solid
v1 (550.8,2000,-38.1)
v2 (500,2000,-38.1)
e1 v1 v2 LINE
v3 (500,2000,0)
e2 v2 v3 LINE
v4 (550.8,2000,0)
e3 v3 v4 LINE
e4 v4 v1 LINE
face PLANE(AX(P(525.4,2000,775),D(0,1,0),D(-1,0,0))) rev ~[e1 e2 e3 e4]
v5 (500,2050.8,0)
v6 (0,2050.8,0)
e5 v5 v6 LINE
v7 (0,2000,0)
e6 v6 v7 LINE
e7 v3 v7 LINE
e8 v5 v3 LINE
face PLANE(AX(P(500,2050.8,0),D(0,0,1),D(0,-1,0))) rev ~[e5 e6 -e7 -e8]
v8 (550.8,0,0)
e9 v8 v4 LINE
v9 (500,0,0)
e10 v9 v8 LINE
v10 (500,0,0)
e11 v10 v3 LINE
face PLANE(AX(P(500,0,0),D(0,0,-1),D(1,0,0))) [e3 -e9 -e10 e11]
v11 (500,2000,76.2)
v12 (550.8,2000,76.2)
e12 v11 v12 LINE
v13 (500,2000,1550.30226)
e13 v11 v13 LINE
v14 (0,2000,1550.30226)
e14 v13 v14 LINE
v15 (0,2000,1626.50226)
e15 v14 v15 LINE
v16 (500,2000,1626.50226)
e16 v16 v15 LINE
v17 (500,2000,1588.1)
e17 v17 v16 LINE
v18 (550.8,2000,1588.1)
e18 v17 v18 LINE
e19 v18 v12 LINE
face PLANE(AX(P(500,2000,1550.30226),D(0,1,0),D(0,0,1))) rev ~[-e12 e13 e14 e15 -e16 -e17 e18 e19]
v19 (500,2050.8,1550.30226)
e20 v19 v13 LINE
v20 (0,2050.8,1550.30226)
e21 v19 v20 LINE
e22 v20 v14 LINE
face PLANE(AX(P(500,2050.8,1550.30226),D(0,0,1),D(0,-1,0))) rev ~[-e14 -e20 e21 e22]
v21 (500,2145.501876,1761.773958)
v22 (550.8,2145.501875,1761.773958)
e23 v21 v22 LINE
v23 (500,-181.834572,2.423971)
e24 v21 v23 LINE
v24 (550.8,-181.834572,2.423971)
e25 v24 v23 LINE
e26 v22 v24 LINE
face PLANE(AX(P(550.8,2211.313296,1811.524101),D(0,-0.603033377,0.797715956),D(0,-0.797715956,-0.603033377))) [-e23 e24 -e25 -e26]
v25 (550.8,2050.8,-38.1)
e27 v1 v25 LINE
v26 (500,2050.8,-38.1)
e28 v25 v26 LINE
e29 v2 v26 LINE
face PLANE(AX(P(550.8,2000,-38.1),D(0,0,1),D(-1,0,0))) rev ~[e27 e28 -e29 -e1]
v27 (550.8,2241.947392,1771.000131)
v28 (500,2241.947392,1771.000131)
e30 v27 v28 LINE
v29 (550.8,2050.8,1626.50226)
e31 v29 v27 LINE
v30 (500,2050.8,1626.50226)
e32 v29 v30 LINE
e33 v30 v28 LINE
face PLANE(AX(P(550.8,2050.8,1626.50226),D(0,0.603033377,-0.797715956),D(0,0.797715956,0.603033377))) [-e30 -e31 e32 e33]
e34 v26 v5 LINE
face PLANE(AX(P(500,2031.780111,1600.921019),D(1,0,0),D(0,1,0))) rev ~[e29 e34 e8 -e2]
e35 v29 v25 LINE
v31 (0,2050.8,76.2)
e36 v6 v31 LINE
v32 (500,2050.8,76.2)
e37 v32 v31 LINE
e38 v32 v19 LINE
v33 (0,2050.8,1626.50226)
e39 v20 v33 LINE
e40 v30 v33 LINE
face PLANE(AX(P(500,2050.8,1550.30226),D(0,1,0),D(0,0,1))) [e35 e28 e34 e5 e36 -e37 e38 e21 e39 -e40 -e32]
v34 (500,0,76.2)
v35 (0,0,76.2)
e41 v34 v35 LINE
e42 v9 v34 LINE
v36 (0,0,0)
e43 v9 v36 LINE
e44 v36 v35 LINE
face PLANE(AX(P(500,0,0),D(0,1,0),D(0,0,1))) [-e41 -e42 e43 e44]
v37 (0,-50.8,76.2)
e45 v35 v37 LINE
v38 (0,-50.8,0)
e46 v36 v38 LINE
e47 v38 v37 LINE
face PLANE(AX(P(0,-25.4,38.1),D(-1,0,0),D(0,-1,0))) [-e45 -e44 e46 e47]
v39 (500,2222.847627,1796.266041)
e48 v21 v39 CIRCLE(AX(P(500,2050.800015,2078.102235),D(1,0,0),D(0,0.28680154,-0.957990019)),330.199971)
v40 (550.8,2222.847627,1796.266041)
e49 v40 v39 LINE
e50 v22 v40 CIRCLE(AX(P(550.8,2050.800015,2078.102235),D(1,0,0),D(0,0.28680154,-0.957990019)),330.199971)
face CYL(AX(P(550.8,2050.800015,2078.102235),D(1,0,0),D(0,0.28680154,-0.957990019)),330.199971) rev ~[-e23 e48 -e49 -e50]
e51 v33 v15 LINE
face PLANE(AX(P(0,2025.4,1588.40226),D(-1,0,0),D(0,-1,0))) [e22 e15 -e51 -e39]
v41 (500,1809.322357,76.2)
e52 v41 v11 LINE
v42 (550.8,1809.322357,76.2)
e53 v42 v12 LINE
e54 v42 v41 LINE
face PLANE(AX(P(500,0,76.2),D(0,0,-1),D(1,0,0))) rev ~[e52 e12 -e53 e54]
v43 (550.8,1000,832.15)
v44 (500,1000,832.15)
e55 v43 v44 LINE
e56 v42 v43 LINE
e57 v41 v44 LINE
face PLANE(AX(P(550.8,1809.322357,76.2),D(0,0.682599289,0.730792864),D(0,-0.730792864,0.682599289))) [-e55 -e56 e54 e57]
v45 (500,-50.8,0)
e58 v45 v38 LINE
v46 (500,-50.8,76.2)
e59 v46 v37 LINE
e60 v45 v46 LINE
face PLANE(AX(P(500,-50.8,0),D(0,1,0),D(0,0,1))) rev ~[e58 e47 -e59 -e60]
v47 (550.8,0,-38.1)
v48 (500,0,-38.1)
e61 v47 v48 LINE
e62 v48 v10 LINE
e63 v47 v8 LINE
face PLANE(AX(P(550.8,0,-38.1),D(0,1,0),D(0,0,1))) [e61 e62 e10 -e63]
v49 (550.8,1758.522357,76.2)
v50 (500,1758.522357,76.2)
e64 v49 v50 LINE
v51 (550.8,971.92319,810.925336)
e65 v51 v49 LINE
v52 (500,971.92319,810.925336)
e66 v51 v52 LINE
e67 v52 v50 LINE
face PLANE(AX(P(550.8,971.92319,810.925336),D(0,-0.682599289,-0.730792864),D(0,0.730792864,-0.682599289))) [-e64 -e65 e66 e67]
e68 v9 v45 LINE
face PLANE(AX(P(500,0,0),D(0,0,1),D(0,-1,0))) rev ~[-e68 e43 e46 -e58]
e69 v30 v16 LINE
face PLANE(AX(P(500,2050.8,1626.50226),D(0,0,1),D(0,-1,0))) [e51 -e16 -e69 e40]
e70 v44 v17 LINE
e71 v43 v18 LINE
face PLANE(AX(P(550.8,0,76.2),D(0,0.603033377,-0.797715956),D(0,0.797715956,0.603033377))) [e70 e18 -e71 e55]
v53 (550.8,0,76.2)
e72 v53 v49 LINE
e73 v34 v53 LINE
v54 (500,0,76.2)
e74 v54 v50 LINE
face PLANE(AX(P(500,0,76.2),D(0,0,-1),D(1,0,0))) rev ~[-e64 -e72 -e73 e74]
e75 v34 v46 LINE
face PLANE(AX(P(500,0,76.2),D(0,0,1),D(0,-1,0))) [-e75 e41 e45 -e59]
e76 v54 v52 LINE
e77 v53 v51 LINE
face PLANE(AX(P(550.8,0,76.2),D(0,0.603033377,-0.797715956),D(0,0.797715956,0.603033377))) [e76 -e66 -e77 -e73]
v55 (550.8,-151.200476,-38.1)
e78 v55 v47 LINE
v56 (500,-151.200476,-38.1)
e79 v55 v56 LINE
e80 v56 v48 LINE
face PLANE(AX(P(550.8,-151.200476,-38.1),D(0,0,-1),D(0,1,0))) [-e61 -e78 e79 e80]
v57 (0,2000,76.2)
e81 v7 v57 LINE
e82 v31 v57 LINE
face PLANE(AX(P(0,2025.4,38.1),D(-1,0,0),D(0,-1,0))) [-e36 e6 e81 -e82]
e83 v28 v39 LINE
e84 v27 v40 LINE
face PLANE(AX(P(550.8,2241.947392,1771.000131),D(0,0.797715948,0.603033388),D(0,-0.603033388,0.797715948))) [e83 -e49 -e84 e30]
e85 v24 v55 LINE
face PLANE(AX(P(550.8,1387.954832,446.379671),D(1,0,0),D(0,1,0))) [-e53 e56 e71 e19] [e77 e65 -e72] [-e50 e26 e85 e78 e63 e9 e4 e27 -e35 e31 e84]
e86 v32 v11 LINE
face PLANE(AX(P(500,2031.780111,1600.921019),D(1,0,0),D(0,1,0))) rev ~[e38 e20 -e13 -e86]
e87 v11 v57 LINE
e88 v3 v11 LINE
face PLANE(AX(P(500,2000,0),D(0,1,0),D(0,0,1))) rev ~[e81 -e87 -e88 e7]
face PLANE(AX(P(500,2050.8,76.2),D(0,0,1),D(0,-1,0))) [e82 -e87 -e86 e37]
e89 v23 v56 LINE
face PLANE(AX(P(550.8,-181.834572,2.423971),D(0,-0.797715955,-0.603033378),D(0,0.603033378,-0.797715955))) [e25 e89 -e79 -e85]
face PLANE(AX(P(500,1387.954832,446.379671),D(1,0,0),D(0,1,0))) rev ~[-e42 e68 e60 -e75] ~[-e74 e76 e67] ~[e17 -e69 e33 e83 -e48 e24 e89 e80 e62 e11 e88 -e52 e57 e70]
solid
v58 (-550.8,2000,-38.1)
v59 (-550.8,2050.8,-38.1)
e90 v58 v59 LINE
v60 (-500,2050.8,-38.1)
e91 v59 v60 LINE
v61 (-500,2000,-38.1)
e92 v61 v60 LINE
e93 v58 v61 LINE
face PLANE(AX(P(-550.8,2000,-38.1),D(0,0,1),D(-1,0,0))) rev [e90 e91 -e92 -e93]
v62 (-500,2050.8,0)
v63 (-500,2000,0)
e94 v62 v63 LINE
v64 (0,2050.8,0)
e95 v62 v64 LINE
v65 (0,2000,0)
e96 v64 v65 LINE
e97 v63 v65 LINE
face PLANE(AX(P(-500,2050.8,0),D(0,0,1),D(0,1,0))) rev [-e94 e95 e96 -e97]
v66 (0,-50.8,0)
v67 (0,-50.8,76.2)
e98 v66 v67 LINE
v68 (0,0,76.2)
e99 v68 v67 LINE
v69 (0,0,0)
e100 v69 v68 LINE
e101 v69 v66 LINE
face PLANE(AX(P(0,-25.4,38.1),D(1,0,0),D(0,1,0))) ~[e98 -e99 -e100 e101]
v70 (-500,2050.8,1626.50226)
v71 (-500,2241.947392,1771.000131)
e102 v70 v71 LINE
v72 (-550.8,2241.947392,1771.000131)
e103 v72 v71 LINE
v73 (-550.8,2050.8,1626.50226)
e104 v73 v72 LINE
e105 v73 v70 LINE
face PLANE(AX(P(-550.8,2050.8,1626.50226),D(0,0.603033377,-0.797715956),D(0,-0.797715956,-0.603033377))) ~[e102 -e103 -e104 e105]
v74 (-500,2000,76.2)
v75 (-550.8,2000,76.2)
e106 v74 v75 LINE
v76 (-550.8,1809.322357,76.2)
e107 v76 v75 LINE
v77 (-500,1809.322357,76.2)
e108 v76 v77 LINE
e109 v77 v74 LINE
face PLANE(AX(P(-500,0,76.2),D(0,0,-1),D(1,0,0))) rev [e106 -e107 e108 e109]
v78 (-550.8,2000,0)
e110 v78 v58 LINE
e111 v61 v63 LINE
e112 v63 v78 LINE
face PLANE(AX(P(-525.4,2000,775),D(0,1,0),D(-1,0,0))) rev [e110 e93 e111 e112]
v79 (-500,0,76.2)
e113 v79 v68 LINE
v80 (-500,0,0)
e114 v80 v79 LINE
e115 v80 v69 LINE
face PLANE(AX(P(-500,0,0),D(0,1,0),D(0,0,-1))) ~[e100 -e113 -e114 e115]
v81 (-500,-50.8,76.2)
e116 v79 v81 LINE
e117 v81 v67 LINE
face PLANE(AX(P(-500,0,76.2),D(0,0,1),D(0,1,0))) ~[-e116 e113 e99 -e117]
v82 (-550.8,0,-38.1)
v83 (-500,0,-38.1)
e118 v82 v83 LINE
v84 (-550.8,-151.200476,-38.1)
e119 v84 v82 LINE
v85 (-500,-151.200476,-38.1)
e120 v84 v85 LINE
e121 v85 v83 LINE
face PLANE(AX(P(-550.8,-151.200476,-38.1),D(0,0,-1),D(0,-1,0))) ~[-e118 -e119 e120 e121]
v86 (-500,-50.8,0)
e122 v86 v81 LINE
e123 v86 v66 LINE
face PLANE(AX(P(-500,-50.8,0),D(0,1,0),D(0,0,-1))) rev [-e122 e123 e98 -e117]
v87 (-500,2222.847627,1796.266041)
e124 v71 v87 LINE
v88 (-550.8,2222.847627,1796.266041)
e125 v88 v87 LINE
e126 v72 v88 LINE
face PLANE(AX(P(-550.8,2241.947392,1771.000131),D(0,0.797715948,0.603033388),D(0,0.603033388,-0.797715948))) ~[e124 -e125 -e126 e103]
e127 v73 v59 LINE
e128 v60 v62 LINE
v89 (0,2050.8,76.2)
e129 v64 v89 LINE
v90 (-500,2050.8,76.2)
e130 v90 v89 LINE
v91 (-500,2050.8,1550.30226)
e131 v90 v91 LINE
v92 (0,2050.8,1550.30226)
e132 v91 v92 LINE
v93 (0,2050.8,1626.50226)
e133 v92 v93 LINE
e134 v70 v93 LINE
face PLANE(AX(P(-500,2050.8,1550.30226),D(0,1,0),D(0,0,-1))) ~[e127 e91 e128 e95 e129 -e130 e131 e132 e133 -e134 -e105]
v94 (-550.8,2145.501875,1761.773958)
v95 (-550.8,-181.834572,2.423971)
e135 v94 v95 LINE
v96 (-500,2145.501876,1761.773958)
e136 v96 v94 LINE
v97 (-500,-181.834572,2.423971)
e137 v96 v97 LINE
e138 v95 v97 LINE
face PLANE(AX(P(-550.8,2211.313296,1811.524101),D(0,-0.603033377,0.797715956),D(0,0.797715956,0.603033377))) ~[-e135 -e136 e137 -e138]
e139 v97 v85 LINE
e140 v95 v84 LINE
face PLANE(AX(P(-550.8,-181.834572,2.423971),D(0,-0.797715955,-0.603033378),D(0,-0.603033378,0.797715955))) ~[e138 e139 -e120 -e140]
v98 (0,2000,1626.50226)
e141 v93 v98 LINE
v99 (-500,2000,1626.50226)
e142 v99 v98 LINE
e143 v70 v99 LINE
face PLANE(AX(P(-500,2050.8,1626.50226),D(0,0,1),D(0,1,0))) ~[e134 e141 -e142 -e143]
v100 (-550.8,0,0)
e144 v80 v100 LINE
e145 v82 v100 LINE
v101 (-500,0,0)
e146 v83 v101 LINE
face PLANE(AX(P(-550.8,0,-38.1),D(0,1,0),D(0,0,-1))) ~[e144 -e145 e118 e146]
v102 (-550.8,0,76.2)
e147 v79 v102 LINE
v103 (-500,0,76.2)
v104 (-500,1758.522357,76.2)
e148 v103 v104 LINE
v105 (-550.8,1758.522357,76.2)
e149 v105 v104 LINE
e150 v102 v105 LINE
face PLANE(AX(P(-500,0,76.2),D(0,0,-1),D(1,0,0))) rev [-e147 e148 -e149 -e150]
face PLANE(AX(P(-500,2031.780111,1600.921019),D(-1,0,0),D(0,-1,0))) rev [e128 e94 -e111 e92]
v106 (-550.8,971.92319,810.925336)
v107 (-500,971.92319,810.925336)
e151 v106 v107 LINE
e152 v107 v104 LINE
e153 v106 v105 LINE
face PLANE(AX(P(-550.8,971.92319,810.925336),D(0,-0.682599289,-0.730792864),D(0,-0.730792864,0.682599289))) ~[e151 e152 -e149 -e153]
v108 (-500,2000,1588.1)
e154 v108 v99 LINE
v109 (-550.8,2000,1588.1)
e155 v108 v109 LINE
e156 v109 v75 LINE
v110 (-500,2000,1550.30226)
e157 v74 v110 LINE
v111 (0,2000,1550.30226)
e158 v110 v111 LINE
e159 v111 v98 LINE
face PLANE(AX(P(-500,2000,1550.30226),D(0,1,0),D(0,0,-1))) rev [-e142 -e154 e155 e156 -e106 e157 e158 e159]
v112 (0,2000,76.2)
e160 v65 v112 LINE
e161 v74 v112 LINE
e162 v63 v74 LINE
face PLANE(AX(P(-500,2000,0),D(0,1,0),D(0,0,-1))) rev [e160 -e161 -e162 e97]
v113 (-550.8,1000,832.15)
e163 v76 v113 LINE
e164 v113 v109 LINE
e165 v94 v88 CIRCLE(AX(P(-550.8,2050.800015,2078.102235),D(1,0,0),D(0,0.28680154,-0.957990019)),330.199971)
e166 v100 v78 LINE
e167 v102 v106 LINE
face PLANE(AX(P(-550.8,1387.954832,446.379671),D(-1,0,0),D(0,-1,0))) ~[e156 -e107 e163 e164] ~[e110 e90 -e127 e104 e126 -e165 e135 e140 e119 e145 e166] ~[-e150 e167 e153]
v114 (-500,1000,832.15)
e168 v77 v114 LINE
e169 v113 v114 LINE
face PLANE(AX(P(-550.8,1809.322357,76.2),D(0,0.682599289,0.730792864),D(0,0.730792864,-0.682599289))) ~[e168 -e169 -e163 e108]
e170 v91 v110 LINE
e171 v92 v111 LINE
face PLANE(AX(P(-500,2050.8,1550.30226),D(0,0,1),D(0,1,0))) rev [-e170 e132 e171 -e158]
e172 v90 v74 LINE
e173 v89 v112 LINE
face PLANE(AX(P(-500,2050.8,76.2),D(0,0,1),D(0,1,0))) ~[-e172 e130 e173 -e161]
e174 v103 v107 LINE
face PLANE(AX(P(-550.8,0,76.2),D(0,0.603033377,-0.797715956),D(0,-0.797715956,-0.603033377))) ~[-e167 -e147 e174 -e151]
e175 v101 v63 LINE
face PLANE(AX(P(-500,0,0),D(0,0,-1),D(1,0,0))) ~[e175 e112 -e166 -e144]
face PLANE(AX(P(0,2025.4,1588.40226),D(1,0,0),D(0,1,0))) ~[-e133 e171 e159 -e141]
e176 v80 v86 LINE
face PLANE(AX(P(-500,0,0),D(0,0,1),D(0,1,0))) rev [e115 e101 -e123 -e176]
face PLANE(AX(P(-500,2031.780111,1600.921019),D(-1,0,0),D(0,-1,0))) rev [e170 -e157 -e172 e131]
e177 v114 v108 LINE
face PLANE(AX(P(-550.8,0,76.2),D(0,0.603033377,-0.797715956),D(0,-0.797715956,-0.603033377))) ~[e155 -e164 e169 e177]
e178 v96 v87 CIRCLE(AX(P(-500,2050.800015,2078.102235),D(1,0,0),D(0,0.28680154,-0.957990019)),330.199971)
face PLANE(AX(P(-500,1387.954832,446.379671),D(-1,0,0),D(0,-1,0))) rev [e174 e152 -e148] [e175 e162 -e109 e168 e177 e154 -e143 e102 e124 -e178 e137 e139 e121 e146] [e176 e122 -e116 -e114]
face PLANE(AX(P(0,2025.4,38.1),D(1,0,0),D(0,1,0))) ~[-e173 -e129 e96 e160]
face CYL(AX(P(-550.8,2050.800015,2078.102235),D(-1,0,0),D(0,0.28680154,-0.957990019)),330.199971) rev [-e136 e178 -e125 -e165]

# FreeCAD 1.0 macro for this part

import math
import FreeCAD as App
import Part
import Sketcher
from FreeCAD import Vector
Q = App.Units.Quantity


def add_polygon(sketch, points):
    """Adds a closed chain of lines whose ends are joined by coincident constraints."""
    first, n = sketch.GeometryCount, len(points)
    for a, b in zip(points, points[1:] + points[:1]):
        sketch.addGeometry(Part.LineSegment(App.Vector(*a, 0), App.Vector(*b, 0)), False)
    for i in range(n):
        sketch.addConstraint(Sketcher.Constraint("Coincident", first + i, 2, first + (i + 1) % n, 1))

doc = App.newDocument("Part")
body = doc.addObject("PartDesign::Body", "Body")

# Sketch on XZ plane
sketch1 = body.newObject("Sketcher::SketchObject", "Sketch")
sketch1.AttachmentSupport = (doc.getObject("XZ_Plane"), [""])
sketch1.MapMode = "FlatFace"
add_polygon(sketch1, [(500, 76.2), (500, 0), (550.8, 0), (550.8, 76.2)])  # lines 0-3
sketch1.addConstraint([
    Sketcher.Constraint("Vertical", 0),
    Sketcher.Constraint("Horizontal", 1),
    Sketcher.Constraint("Vertical", 2),
    Sketcher.Constraint("Horizontal", 3),
    Sketcher.Constraint("PointOnObject", 0, 2, -1),
    Sketcher.Constraint("DistanceX", 1, 1, 1, 2, Q("50.8 mm")),
    Sketcher.Constraint("DistanceY", 0, 2, 0, 1, Q("76.2 mm")),
    Sketcher.Constraint("DistanceX", -1, 1, 0, 2, Q("500 mm")),
])
pad1 = body.newObject("PartDesign::Pad", "Pad")
pad1.Profile = sketch1
pad1.Length = 2000
pad1.Reversed = True

# Sketch on XZ plane
sketch2 = body.newObject("Sketcher::SketchObject", "Sketch001")
sketch2.AttachmentSupport = (doc.getObject("XZ_Plane"), [""])
sketch2.MapMode = "FlatFace"
sketch2.AttachmentOffset = App.Placement(Vector(0, 0, -2000), App.Rotation())
add_polygon(sketch2, [(550.8, 1588.1), (550.8, -38.1), (500, -38.1), (500, 1588.1)])  # lines 0-3
sketch2.addConstraint([
    Sketcher.Constraint("Vertical", 0),
    Sketcher.Constraint("Horizontal", 1),
    Sketcher.Constraint("Vertical", 2),
    Sketcher.Constraint("Horizontal", 3),
    Sketcher.Constraint("DistanceX", 1, 2, 1, 1, Q("50.8 mm")),
    Sketcher.Constraint("DistanceY", 0, 2, 0, 1, Q("1626.2 mm")),
    Sketcher.Constraint("DistanceX", -1, 1, 1, 2, Q("500 mm")),
    Sketcher.Constraint("DistanceY", 0, 2, -1, 1, Q("38.1 mm")),
])
pad2 = body.newObject("PartDesign::Pad", "Pad001")
pad2.Profile = sketch2
pad2.Length = 50.8
pad2.Reversed = True

# Sketch on YZ plane
sketch3 = body.newObject("Sketcher::SketchObject", "Sketch002")
sketch3.AttachmentSupport = (doc.getObject("YZ_Plane"), [""])
sketch3.MapMode = "FlatFace"
sketch3.AttachmentOffset = App.Placement(Vector(0, 0, 550.8), App.Rotation())
add_polygon(sketch3, [(2000, 1588.1), (2050.8, 1588.1), (2050.8, 1626.50226), (2241.947392, 1771.000131), (2211.313296, 1811.524101), (-181.834572, 2.423971), (-151.200476, -38.1), (0, -38.1), (0, 76.2)])  # lines 0-8
sketch3.addConstraint([
    Sketcher.Constraint("Horizontal", 0),
    Sketcher.Constraint("Vertical", 1),
    Sketcher.Constraint("Horizontal", 6),
    Sketcher.Constraint("Vertical", 7),
    Sketcher.Constraint("PointOnObject", 6, 2, -2),
    Sketcher.Constraint("Perpendicular", 2, 3),
    Sketcher.Constraint("Perpendicular", 3, 4),
    Sketcher.Constraint("Perpendicular", 4, 5),
    Sketcher.Constraint("Perpendicular", 5, 8),
    Sketcher.Constraint("Equal", 3, 5),
    Sketcher.Constraint("Distance", 4, Q("3000 mm")),
    Sketcher.Constraint("DistanceX", 0, 1, 0, 2, Q("50.8 mm")),
    Sketcher.Constraint("DistanceY", 7, 1, 7, 2, Q("114.3 mm")),
    Sketcher.Constraint("DistanceX", -1, 1, 8, 2, Q("2000 mm")),
    Sketcher.Constraint("Distance", 3, Q("50.8 mm")),
    Sketcher.Constraint("DistanceY", -1, 1, 0, 2, Q("1588.1 mm")),
    Sketcher.Constraint("DistanceY", 5, 2, -1, 1, Q("38.1 mm")),
    Sketcher.Constraint("DistanceY", 1, 1, 1, 2, Q("38.40226 mm")),
])
pad3 = body.newObject("PartDesign::Pad", "Pad002")
pad3.Profile = sketch3
pad3.Length = 50.8
pad3.Reversed = True

# Sketch on YZ plane
sketch4 = body.newObject("Sketcher::SketchObject", "Sketch003")
sketch4.AttachmentSupport = (doc.getObject("YZ_Plane"), [""])
sketch4.MapMode = "FlatFace"
sketch4.AttachmentOffset = App.Placement(Vector(0, 0, 500), App.Rotation())
add_polygon(sketch4, [(0, 76.2), (0, 0), (-50.8, 0), (-50.8, 76.2)])  # lines 0-3
add_polygon(sketch4, [(2050.8, 76.2), (2050.8, 0), (2000, 0), (2000, 76.2)])  # lines 4-7
add_polygon(sketch4, [(2050.8, 1626.50226), (2050.8, 1550.30226), (2000, 1550.30226), (2000, 1626.50226)])  # lines 8-11
sketch4.addConstraint([
    Sketcher.Constraint("Vertical", 0),
    Sketcher.Constraint("Horizontal", 1),
    Sketcher.Constraint("Vertical", 2),
    Sketcher.Constraint("Horizontal", 3),
    Sketcher.Constraint("Vertical", 4),
    Sketcher.Constraint("Horizontal", 5),
    Sketcher.Constraint("Vertical", 6),
    Sketcher.Constraint("Horizontal", 7),
    Sketcher.Constraint("Vertical", 8),
    Sketcher.Constraint("Horizontal", 9),
    Sketcher.Constraint("Vertical", 10),
    Sketcher.Constraint("Horizontal", 11),
    Sketcher.Constraint("Coincident", 0, 2, -1, 1),
    Sketcher.Constraint("PointOnObject", 4, 2, -1),
    Sketcher.Constraint("Horizontal", 3, 2, 6, 2),
    Sketcher.Constraint("Vertical", 7, 2, 8, 2),
    Sketcher.Constraint("Vertical", 6, 2, 9, 2),
    Sketcher.Constraint("Equal", 3, 5),
    Sketcher.Constraint("Equal", 6, 8),
    Sketcher.Constraint("DistanceX", 1, 2, 1, 1, Q("50.8 mm")),
    Sketcher.Constraint("DistanceY", 0, 2, 0, 1, Q("76.2 mm")),
    Sketcher.Constraint("DistanceX", -1, 1, 5, 2, Q("2000 mm")),
    Sketcher.Constraint("DistanceY", -1, 1, 8, 2, Q("1550.30226 mm")),
])
pad4 = body.newObject("PartDesign::Pad", "Pad003")
pad4.Profile = sketch4
pad4.Length = 500
pad4.Reversed = True

# Sketch on YZ plane
sketch5 = body.newObject("Sketcher::SketchObject", "Sketch004")
sketch5.AttachmentSupport = (doc.getObject("YZ_Plane"), [""])
sketch5.MapMode = "FlatFace"
sketch5.AttachmentOffset = App.Placement(Vector(0, 0, 550.8), App.Rotation())
sketch5.addGeometry([
    Part.ArcOfCircle(Part.Circle(Vector(2050.800015, 2078.102235, 0), Vector(0, 0, 1), 330.199971), math.radians(-73.333435), math.radians(-58.597917)),
    Part.LineSegment(Vector(2222.847627, 1796.266041, 0), Vector(2211.313296, 1811.524101, 0)),
    Part.LineSegment(Vector(2211.313296, 1811.524101, 0), Vector(2145.501875, 1761.773958, 0)),
], False)
sketch5.addConstraint([
    Sketcher.Constraint("Coincident", 0, 2, 1, 1),
    Sketcher.Constraint("Coincident", 1, 2, 2, 1),
    Sketcher.Constraint("Coincident", 2, 2, 0, 1),
    Sketcher.Constraint("Perpendicular", 1, 2),
    Sketcher.Constraint("Radius", 0, Q("330.199971 mm")),
    Sketcher.Constraint("DistanceY", -1, 1, 1, 2, Q("1811.524101 mm")),
    Sketcher.Constraint("DistanceY", -1, 1, 0, 2, Q("1796.266041 mm")),
    Sketcher.Constraint("DistanceY", -1, 1, 2, 2, Q("1761.773958 mm")),
    Sketcher.Constraint("DistanceX", 0, 3, 1, 2, Q("160.513281 mm")),
    Sketcher.Constraint("DistanceX", -1, 1, 0, 3, Q("2050.800015 mm")),
])
pocket1 = body.newObject("PartDesign::Pocket", "Pocket")
pocket1.Profile = sketch5
pocket1.Type = "ThroughAll"

# Sketch on YZ plane
sketch6 = body.newObject("Sketcher::SketchObject", "Sketch005")
sketch6.AttachmentSupport = (doc.getObject("YZ_Plane"), [""])
sketch6.MapMode = "FlatFace"
sketch6.AttachmentOffset = App.Placement(Vector(0, 0, 550.8), App.Rotation())
add_polygon(sketch6, [(1758.522357, 76.2), (1809.322357, 76.2), (1000, 832.15), (971.92319, 810.925336)])  # lines 0-3
sketch6.addConstraint([
    Sketcher.Constraint("Horizontal", 0),
    Sketcher.Constraint("Parallel", 1, 3),
    Sketcher.Constraint("DistanceX", 0, 1, 0, 2, Q("50.8 mm")),
    Sketcher.Constraint("DistanceX", -1, 1, 1, 2, Q("1000 mm")),
    Sketcher.Constraint("DistanceY", -1, 1, 0, 2, Q("76.2 mm")),
    Sketcher.Constraint("DistanceY", -1, 1, 1, 2, Q("832.15 mm")),
    Sketcher.Constraint("Distance", 2, Q("35.1965 mm")),
    Sketcher.Constraint("Distance", 3, Q("1076.36405 mm")),
])
pad5 = body.newObject("PartDesign::Pad", "Pad004")
pad5.Profile = sketch6
pad5.Length = 50.8
pad5.Reversed = True
body2 = doc.addObject("PartDesign::Body", "Body001")
body2.AllowCompound = True

# Sketch on XZ plane
sketch7 = body2.newObject("Sketcher::SketchObject", "Sketch006")
sketch7.AttachmentSupport = (doc.getObject("XZ_Plane001"), [""])
sketch7.MapMode = "FlatFace"
sketch7.AttachmentOffset = App.Placement(Vector(0, 0, -2050.8), App.Rotation())
add_polygon(sketch7, [(500, 1270.90226), (500, 1220.10226), (39.943245, 927.55113), (0, 952.95113)])  # lines 0-3
add_polygon(sketch7, [(500, 635), (500, 584.2), (0, 902.15113), (39.943245, 927.55113)])  # lines 4-7
add_polygon(sketch7, [(-39.943245, 927.55113), (0, 902.15113), (-500, 584.2), (-500, 635)])  # lines 8-11
add_polygon(sketch7, [(0, 952.95113), (-39.943245, 927.55113), (-500, 1220.10226), (-500, 1270.90226)])  # lines 12-15
sketch7.addConstraint([
    Sketcher.Constraint("Vertical", 0),
    Sketcher.Constraint("Vertical", 4),
    Sketcher.Constraint("Vertical", 10),
    Sketcher.Constraint("Vertical", 14),
    Sketcher.Constraint("Coincident", 6, 2, 1, 2),
    Sketcher.Constraint("Coincident", 8, 2, 5, 2),
    Sketcher.Constraint("Coincident", 12, 2, 11, 2),
    Sketcher.Constraint("Coincident", 15, 2, 2, 2),
    Sketcher.Constraint("Symmetric", 4, 2, 9, 2, -2),
    Sketcher.Constraint("Symmetric", 1, 2, 11, 2, -2),
    Sketcher.Constraint("Symmetric", 0, 2, 13, 2, -2),
    Sketcher.Constraint("PointOnObject", 2, 2, -2),
    Sketcher.Constraint("PointOnObject", 5, 2, -2),
    Sketcher.Constraint("Parallel", 1, 3),
    Sketcher.Constraint("Parallel", 2, 5),
    Sketcher.Constraint("Parallel", 3, 6),
    Sketcher.Constraint("Parallel", 5, 7),
    Sketcher.Constraint("Parallel", 7, 8),
    Sketcher.Constraint("Parallel", 9, 11),
    Sketcher.Constraint("Parallel", 13, 15),
    Sketcher.Constraint("Vertical", 3, 2, 4, 2),
    Sketcher.Constraint("DistanceY", 0, 2, 0, 1, Q("50.8 mm")),
    Sketcher.Constraint("DistanceX", -1, 1, 0, 2, Q("500 mm")),
    Sketcher.Constraint("DistanceY", -1, 1, 7, 2, Q("635 mm")),
    Sketcher.Constraint("DistanceY", -1, 1, 0, 2, Q("1220.10226 mm")),
])
pad6 = body2.newObject("PartDesign::Pad", "Pad005")
pad6.Profile = sketch7
pad6.Length = 50.8
body3 = doc.addObject("PartDesign::Body", "Body002")
doc.recompute()

mirroring = doc.addObject("Part::Mirroring", "Mirroring")
mirroring.Source = body
mirroring.Base = Vector(0, 2025.4, 38.1)
mirroring.Normal = Vector(-1, 0, 0)
body3.BaseFeature = mirroring
doc.recompute()
body4 = doc.addObject("PartDesign::Body", "Body003")
body4.AllowCompound = True
doc.recompute()

mirroring2 = doc.addObject("Part::Mirroring", "Mirroring001")
mirroring2.Source = body2
mirroring2.Base = Vector(0, 2025.4, 38.1)
mirroring2.Normal = Vector(-1, 0, 0)
body4.BaseFeature = mirroring2
doc.recompute()
body2.Visibility = False
body4.Visibility = False
mirroring.Visibility = False
mirroring2.Visibility = False

doc.recompute()
